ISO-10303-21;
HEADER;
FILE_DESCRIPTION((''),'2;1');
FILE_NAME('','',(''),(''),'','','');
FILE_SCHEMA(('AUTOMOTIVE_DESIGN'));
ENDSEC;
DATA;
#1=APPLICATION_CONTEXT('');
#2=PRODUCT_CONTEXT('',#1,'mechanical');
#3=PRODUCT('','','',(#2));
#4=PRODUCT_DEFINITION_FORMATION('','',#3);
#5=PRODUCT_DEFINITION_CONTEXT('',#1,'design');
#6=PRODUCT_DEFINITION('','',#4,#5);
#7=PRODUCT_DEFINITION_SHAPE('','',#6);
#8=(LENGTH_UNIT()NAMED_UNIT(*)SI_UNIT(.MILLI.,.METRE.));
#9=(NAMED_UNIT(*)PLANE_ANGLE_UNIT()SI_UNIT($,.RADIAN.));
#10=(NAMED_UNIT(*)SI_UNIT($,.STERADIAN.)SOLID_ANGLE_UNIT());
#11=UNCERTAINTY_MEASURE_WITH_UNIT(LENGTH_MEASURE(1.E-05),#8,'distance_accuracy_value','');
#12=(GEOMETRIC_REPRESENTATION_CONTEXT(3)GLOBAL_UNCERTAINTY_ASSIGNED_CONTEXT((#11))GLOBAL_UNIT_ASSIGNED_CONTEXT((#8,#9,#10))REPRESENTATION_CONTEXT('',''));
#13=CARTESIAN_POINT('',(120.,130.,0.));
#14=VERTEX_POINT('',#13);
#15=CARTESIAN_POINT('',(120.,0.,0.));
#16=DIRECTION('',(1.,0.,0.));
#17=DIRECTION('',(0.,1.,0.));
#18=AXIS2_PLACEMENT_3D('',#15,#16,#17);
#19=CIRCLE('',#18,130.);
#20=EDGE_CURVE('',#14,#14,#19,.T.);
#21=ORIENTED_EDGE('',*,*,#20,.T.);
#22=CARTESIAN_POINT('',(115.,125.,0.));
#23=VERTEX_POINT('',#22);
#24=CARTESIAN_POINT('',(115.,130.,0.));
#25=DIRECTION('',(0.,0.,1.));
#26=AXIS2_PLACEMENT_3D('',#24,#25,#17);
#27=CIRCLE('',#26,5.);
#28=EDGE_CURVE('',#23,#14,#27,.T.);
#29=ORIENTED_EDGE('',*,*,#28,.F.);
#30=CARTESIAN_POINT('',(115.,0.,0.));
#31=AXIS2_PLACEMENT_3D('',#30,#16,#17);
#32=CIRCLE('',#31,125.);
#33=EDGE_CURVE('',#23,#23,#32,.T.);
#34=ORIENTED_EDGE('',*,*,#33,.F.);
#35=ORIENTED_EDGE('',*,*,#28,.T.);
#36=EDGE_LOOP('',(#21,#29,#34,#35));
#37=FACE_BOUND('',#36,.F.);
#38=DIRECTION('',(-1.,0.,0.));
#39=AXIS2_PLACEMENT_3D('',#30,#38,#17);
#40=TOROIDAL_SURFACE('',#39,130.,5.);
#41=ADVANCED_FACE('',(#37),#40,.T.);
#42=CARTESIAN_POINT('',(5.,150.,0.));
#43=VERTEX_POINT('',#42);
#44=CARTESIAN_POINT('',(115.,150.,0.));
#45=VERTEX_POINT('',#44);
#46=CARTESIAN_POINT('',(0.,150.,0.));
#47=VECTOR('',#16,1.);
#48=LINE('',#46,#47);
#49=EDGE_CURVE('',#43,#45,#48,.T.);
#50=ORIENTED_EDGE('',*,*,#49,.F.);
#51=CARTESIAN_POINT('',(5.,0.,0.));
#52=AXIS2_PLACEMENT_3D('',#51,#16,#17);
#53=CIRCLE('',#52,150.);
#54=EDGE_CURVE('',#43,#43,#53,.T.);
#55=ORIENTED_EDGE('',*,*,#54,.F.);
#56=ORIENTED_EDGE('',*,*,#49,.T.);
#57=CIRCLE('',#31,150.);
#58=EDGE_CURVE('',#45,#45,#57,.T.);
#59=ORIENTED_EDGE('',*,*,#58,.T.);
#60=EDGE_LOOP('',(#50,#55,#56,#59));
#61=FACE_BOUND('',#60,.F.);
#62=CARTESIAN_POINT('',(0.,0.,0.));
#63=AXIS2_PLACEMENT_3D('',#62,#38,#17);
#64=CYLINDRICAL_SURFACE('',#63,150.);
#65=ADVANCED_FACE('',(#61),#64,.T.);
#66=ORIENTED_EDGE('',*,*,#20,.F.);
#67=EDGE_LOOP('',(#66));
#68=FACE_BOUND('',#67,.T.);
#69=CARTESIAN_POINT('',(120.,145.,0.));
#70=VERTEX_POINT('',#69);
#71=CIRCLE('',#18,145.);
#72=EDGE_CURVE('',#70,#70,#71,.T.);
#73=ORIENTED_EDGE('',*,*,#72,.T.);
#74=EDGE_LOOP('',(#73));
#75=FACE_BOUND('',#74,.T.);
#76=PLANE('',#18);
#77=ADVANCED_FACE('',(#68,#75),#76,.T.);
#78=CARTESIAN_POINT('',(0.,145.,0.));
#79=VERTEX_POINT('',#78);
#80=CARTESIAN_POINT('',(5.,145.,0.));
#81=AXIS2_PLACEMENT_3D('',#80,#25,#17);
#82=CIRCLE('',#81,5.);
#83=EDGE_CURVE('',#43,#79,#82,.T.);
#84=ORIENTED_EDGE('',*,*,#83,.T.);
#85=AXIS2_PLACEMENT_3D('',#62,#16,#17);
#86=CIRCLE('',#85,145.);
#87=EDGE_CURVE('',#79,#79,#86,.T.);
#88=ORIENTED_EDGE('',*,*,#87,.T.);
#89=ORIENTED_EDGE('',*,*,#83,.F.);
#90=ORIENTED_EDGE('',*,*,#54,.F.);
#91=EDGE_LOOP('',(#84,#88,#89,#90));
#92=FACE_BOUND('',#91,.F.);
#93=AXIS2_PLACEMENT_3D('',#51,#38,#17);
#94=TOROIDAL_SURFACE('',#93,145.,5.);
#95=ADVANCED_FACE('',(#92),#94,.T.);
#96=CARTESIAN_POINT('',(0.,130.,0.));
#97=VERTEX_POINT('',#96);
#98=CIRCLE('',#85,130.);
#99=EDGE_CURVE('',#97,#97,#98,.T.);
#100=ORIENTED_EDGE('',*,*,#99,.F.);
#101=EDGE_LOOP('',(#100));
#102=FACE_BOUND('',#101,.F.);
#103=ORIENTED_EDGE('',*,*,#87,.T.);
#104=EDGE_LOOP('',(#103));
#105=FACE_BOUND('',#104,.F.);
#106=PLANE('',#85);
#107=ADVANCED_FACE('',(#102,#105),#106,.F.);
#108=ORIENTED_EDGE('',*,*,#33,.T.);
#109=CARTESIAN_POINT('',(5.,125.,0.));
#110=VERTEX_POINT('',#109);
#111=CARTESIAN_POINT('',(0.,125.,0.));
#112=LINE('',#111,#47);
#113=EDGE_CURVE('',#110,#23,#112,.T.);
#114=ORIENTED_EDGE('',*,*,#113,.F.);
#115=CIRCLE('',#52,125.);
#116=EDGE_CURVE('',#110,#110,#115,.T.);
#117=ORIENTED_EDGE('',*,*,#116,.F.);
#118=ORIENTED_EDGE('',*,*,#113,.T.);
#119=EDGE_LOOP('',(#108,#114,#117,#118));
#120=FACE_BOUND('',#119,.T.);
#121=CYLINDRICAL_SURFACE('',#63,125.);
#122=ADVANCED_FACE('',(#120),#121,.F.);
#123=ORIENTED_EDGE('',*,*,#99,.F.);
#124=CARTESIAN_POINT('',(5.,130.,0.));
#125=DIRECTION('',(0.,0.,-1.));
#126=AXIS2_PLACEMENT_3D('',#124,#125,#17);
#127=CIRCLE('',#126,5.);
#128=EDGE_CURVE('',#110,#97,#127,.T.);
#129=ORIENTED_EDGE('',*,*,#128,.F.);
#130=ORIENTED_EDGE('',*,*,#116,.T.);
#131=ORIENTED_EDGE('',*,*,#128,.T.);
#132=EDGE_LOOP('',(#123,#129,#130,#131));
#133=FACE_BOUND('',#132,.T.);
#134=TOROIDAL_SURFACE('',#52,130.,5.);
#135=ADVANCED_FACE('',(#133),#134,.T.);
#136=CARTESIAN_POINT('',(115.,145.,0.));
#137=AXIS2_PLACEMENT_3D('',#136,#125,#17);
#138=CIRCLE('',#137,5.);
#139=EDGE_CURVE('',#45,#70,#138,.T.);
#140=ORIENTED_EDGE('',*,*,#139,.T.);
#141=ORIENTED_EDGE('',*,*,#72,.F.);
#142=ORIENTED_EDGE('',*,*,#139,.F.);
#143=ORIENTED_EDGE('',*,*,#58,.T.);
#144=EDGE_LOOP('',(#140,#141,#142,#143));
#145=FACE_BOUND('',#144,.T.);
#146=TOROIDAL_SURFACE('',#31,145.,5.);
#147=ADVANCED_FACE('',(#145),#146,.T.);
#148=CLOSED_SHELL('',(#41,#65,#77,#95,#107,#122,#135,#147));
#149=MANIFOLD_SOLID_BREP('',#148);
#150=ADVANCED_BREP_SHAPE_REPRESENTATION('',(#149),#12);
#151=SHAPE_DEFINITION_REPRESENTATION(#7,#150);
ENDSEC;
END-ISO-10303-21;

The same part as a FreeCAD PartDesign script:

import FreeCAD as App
import Part
import Sketcher
from FreeCAD import Vector
Q = App.Units.Quantity


def edges_at(feature, points):
    """Names of the edges that pass closest to the given points."""
    edges = feature.Shape.Edges
    near = lambda p: min(range(len(edges)), key=lambda i: edges[i].distToShape(Part.Vertex(*p))[0])
    return sorted({f"Edge{near(p) + 1}" for p in points})

doc = App.newDocument("Part")
params = doc.addObject("Spreadsheet::Sheet", "Params")
for row, (alias, value) in enumerate([
    ("sketch1_diameter", "300 mm"),
    ("sketch1_diameter2", "250 mm"),
    ("pad1_length", "120 mm"),
    ("fillet_radius", "5 mm"),
], start=1):
    params.set(f"A{row}", alias)
    params.set(f"B{row}", "=" + value)
    params.setAlias(f"B{row}", alias)

body = doc.addObject("PartDesign::Body", "Body")

# Sketch on YZ plane
sketch1 = body.newObject("Sketcher::SketchObject", "Sketch")
sketch1.AttachmentSupport = (doc.getObject("YZ_Plane"), [""])
sketch1.MapMode = "FlatFace"
sketch1.addGeometry(Part.Circle(Vector(0, 0, 0), Vector(0, 0, 1), 150), False)
sketch1.addGeometry(Part.Circle(Vector(0, 0, 0), Vector(0, 0, 1), 125), False)
sketch1.addConstraint(Sketcher.Constraint("Coincident", 0, 3, -1, 1))
sketch1.addConstraint(Sketcher.Constraint("Coincident", 1, 3, -1, 1))
sketch1.addConstraint(Sketcher.Constraint("Diameter", 0, Q("300 mm")))
sketch1.addConstraint(Sketcher.Constraint("Diameter", 1, Q("250 mm")))
sketch1.setExpression("Constraints[2]", "Params.sketch1_diameter")
sketch1.setExpression("Constraints[3]", "Params.sketch1_diameter2")
pad1 = body.newObject("PartDesign::Pad", "Pad")
pad1.Profile = sketch1
pad1.setExpression("Length", "Params.pad1_length")
doc.recompute()

fillet = body.newObject("PartDesign::Fillet", "Fillet")
fillet.Base = (pad1, edges_at(pad1, [
    (120, -125, 0),
    (120, -150, 0),
    (0, -150, 0),
    (0, -125, 0),
]))
fillet.setExpression("Radius", "Params.fillet_radius")

doc.recompute()
